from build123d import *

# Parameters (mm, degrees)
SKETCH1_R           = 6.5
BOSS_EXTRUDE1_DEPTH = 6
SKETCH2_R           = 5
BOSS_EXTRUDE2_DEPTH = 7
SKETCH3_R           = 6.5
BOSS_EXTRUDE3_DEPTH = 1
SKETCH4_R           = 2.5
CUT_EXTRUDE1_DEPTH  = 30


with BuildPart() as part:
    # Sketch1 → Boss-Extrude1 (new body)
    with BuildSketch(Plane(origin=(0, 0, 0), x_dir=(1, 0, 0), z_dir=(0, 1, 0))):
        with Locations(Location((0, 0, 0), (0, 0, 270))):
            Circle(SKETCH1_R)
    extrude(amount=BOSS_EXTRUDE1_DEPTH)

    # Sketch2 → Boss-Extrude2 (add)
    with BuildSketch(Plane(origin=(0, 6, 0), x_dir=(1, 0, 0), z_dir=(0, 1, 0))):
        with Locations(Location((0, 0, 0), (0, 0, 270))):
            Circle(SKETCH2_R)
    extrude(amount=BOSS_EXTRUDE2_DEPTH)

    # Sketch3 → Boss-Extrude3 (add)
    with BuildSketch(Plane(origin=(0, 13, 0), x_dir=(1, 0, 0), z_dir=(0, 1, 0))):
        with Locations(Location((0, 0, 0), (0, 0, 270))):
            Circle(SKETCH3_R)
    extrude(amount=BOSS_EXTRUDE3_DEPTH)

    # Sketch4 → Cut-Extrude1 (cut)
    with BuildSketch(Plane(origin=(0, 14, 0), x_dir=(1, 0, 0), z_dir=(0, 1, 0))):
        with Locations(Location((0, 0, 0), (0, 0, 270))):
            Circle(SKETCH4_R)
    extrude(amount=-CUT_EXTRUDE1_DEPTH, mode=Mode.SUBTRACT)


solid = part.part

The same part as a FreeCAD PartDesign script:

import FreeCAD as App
import Part
import Sketcher
from FreeCAD import Vector
Q = App.Units.Quantity

doc = App.newDocument("Part")
params = doc.addObject("Spreadsheet::Sheet", "Params")
for row, (alias, value) in enumerate([
    ("sketch1_diameter", "13 mm"),
    ("pad1_length", "6 mm"),
    ("sketch2_diameter", "10 mm"),
    ("pad2_length", "7 mm"),
    ("sketch3_diameter", "13 mm"),
    ("pad3_length", "1 mm"),
    ("sketch4_diameter", "5 mm"),
    ("pocket1_length", "30 mm"),
], start=1):
    params.set(f"A{row}", alias)
    params.set(f"B{row}", "=" + value)
    params.setAlias(f"B{row}", alias)

body = doc.addObject("PartDesign::Body", "Body")

sketch1 = body.newObject("Sketcher::SketchObject", "Sketch")
sketch1.AttachmentSupport = (doc.getObject("XZ_Plane"), [""])
sketch1.MapMode = "FlatFace"
sketch1.addGeometry(Part.Circle(Vector(0, 0, 0), Vector(0, 0, 1), 6), False)
sketch1.addConstraint([
    Sketcher.Constraint("Coincident", 0, 3, -1, 1),
    Sketcher.Constraint("Diameter", 0, Q("13 mm")),
])
sketch1.setExpression("Constraints[1]", "Params.sketch1_diameter")
pad1 = body.newObject("PartDesign::Pad", "Pad")
pad1.Profile = sketch1
pad1.setExpression("Length", "Params.pad1_length")
pad1.Reversed = True

sketch2 = body.newObject("Sketcher::SketchObject", "Sketch001")
sketch2.AttachmentSupport = (doc.getObject("XZ_Plane"), [""])
sketch2.MapMode = "FlatFace"
sketch2.AttachmentOffset = App.Placement(Vector(0, 0, -6), App.Rotation())
sketch2.addGeometry(Part.Circle(Vector(0, 0, 0), Vector(0, 0, 1), 5), False)
sketch2.addConstraint([
    Sketcher.Constraint("Coincident", 0, 3, -1, 1),
    Sketcher.Constraint("Diameter", 0, Q("10 mm")),
])
sketch2.setExpression("Constraints[1]", "Params.sketch2_diameter")
pad2 = body.newObject("PartDesign::Pad", "Pad001")
pad2.Profile = sketch2
pad2.setExpression("Length", "Params.pad2_length")
pad2.Reversed = True

sketch3 = body.newObject("Sketcher::SketchObject", "Sketch002")
sketch3.AttachmentSupport = (doc.getObject("XZ_Plane"), [""])
sketch3.MapMode = "FlatFace"
sketch3.AttachmentOffset = App.Placement(Vector(0, 0, -13), App.Rotation())
sketch3.addGeometry(Part.Circle(Vector(0, 0, 0), Vector(0, 0, 1), 6), False)
sketch3.addConstraint([
    Sketcher.Constraint("Coincident", 0, 3, -1, 1),
    Sketcher.Constraint("Diameter", 0, Q("13 mm")),
])
sketch3.setExpression("Constraints[1]", "Params.sketch3_diameter")
pad3 = body.newObject("PartDesign::Pad", "Pad002")
pad3.Profile = sketch3
pad3.setExpression("Length", "Params.pad3_length")
pad3.Reversed = True

sketch4 = body.newObject("Sketcher::SketchObject", "Sketch003")
sketch4.AttachmentSupport = (doc.getObject("XZ_Plane"), [""])
sketch4.MapMode = "FlatFace"
sketch4.AttachmentOffset = App.Placement(Vector(0, 0, -14), App.Rotation())
sketch4.addGeometry(Part.Circle(Vector(0, 0, 0), Vector(0, 0, 1), 2.5), False)
sketch4.addConstraint([
    Sketcher.Constraint("Coincident", 0, 3, -1, 1),
    Sketcher.Constraint("Diameter", 0, Q("5 mm")),
])
sketch4.setExpression("Constraints[1]", "Params.sketch4_diameter")
pocket1 = body.newObject("PartDesign::Pocket", "Pocket")
pocket1.Profile = sketch4
pocket1.setExpression("Length", "Params.pocket1_length")
pocket1.Reversed = True

doc.recompute()
